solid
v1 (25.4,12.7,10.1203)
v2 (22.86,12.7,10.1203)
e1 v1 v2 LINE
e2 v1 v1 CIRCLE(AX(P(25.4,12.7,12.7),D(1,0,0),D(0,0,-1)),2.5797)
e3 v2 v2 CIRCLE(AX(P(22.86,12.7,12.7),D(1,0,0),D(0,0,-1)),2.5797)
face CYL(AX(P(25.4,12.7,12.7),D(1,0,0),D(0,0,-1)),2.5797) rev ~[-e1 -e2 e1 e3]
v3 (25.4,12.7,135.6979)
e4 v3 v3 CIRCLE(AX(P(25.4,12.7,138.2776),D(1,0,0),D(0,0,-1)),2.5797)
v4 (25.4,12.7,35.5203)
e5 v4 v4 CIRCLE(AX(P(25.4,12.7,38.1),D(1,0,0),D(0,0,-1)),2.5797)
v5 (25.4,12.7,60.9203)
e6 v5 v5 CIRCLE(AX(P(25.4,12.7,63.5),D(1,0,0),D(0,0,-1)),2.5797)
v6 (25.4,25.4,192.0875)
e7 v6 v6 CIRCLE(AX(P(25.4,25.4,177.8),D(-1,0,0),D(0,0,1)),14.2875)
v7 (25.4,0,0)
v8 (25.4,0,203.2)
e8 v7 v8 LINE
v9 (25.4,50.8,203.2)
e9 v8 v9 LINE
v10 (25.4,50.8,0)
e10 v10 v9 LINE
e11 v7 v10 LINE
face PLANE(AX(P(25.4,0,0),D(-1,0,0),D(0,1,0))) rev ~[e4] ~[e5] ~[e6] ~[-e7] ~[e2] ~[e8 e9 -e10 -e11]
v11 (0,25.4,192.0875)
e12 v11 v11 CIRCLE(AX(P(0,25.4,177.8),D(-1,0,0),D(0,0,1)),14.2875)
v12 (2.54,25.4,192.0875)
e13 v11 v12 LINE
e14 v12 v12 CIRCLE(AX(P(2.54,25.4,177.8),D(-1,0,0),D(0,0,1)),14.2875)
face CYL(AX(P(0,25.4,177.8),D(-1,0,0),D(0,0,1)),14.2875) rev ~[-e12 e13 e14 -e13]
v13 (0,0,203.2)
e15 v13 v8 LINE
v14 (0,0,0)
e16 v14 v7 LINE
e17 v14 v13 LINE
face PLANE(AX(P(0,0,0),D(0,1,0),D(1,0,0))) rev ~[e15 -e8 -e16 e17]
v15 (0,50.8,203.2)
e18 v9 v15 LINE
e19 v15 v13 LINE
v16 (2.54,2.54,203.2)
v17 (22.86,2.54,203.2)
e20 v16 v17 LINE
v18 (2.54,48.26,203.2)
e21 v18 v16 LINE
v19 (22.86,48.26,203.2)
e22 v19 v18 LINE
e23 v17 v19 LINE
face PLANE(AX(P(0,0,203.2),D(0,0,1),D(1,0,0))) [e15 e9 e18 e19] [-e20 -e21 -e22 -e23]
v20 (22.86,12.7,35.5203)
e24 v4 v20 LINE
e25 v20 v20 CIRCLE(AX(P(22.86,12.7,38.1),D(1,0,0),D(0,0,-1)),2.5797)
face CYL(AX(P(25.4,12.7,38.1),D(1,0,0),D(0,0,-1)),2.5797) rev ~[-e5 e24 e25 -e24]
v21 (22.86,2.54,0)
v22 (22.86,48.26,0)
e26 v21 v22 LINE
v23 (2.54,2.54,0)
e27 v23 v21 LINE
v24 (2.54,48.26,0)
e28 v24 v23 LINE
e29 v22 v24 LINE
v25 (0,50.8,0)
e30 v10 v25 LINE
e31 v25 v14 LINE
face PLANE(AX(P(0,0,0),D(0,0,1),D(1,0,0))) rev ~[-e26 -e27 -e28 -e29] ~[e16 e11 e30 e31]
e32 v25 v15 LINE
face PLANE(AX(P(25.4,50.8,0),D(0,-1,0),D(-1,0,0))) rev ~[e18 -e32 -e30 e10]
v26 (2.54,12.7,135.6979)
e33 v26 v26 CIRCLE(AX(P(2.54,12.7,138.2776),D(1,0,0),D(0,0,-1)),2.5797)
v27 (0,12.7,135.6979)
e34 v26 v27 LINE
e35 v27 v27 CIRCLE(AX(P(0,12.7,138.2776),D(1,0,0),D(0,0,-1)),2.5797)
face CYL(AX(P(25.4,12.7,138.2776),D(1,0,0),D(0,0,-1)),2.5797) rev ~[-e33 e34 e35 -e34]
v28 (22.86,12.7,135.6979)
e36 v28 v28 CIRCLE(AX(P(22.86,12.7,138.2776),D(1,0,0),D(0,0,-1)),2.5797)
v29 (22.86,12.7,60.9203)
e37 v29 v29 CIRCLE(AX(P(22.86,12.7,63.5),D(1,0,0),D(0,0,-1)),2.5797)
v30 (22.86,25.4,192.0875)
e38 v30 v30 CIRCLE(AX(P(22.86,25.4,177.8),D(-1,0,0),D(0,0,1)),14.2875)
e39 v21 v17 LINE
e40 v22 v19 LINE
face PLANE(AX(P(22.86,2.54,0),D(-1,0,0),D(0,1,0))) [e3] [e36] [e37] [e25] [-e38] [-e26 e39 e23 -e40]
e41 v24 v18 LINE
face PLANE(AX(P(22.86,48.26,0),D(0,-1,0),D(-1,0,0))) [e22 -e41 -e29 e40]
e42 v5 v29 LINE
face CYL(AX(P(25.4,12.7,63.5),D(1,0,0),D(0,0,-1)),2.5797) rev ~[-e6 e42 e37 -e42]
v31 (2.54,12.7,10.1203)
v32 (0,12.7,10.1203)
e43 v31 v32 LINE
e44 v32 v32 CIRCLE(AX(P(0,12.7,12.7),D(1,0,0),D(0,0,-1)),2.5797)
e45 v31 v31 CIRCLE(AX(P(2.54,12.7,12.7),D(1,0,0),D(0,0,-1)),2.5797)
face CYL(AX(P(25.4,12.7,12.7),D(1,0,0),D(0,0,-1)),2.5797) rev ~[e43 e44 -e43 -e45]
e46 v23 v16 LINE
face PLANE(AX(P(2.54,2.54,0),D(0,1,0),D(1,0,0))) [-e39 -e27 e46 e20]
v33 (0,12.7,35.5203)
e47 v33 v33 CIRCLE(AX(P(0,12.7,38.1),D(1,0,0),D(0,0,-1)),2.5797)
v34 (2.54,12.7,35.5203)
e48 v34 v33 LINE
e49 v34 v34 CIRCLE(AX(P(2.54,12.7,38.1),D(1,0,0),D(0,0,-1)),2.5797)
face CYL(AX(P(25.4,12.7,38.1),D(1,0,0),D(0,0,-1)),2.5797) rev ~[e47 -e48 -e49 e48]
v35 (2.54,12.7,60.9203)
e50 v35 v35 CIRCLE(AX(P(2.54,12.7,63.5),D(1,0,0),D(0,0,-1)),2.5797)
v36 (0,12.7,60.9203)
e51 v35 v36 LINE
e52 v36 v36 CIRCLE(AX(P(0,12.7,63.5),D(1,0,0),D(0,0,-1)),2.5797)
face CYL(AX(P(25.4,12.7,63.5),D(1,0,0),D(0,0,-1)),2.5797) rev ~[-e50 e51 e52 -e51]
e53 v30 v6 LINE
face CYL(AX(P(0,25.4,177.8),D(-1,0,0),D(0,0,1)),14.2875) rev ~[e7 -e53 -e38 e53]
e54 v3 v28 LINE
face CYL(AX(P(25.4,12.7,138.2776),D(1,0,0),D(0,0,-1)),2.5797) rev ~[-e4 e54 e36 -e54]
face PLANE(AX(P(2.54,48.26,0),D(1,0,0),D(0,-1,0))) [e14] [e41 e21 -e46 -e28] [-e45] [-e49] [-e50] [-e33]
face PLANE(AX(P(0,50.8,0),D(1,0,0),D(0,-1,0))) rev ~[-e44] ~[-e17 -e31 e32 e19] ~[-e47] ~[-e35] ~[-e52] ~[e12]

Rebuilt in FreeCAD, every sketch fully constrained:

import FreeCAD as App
import Part
import Sketcher
Q = App.Units.Quantity

doc = App.newDocument("Part")
params = doc.addObject("Spreadsheet::Sheet", "Params")
for row, (alias, value) in enumerate([
    ("sketch1_width", "1 in"),
    ("sketch1_height", "2 in"),
    ("pad1_length", "8 in"),
    ("sketch2_diameter", "0.203126 in"),
    ("pocket1_length", "8 in"),
    ("sketch3_diameter", "0.203126 in"),
    ("pocket2_length", "8 in"),
    ("sketch4_diameter", "1.125 in"),
    ("pocket3_length", "1 in"),
], start=1):
    params.set(f"A{row}", alias)
    params.set(f"B{row}", "=" + value)
    params.setAlias(f"B{row}", alias)

body = doc.addObject("PartDesign::Body", "Body")

# Sketch on XY plane
sketch1 = doc.addObject("Sketcher::SketchObject", "Sketch")
body.addObject(sketch1)
sketch1.AttachmentSupport = (doc.XY_Plane, [""])
sketch1.MapMode = "FlatFace"
sketch1.addGeometry(Part.LineSegment(App.Vector(0, 51, 0), App.Vector(0, 0, 0)), False)
sketch1.addGeometry(Part.LineSegment(App.Vector(0, 0, 0), App.Vector(25, 0, 0)), False)
sketch1.addGeometry(Part.LineSegment(App.Vector(25, 0, 0), App.Vector(25, 51, 0)), False)
sketch1.addGeometry(Part.LineSegment(App.Vector(25, 51, 0), App.Vector(0, 51, 0)), False)
sketch1.addGeometry(Part.LineSegment(App.Vector(3, 48, 0), App.Vector(23, 48, 0)), False)
sketch1.addGeometry(Part.LineSegment(App.Vector(23, 48, 0), App.Vector(23, 3, 0)), False)
sketch1.addGeometry(Part.LineSegment(App.Vector(23, 3, 0), App.Vector(3, 3, 0)), False)
sketch1.addGeometry(Part.LineSegment(App.Vector(3, 3, 0), App.Vector(3, 48, 0)), False)
sketch1.addConstraint(Sketcher.Constraint("Coincident", 0, 2, 1, 1))
sketch1.addConstraint(Sketcher.Constraint("Coincident", 1, 2, 2, 1))
sketch1.addConstraint(Sketcher.Constraint("Coincident", 2, 2, 3, 1))
sketch1.addConstraint(Sketcher.Constraint("Coincident", 3, 2, 0, 1))
sketch1.addConstraint(Sketcher.Constraint("Coincident", 4, 2, 5, 1))
sketch1.addConstraint(Sketcher.Constraint("Coincident", 5, 2, 6, 1))
sketch1.addConstraint(Sketcher.Constraint("Coincident", 6, 2, 7, 1))
sketch1.addConstraint(Sketcher.Constraint("Coincident", 7, 2, 4, 1))
sketch1.addConstraint(Sketcher.Constraint("Vertical", 0))
sketch1.addConstraint(Sketcher.Constraint("Horizontal", 1))
sketch1.addConstraint(Sketcher.Constraint("Vertical", 2))
sketch1.addConstraint(Sketcher.Constraint("Horizontal", 3))
sketch1.addConstraint(Sketcher.Constraint("Horizontal", 4))
sketch1.addConstraint(Sketcher.Constraint("Vertical", 5))
sketch1.addConstraint(Sketcher.Constraint("Horizontal", 6))
sketch1.addConstraint(Sketcher.Constraint("Vertical", 7))
sketch1.addConstraint(Sketcher.Constraint("Coincident", 0, 2, -1, 1))
sketch1.addConstraint(Sketcher.Constraint("DistanceX", 1, 1, 1, 2, Q("1 in")))
sketch1.addConstraint(Sketcher.Constraint("DistanceY", 0, 2, 0, 1, Q("2 in")))
sketch1.addConstraint(Sketcher.Constraint("DistanceY", -1, 1, 5, 2, Q("0.1 in")))
sketch1.addConstraint(Sketcher.Constraint("DistanceX", -1, 1, 6, 2, Q("0.1 in")))
sketch1.addConstraint(Sketcher.Constraint("DistanceX", 4, 2, 2, 2, Q("0.1 in")))
sketch1.addConstraint(Sketcher.Constraint("DistanceY", 4, 2, 2, 2, Q("0.1 in")))
sketch1.setExpression("Constraints[17]", "Params.sketch1_width")
sketch1.setExpression("Constraints[18]", "Params.sketch1_height")
pad1 = doc.addObject("PartDesign::Pad", "Pad")
body.addObject(pad1)
pad1.Profile = sketch1
pad1.setExpression("Length", "Params.pad1_length")

# Sketch on YZ plane
sketch2 = doc.addObject("Sketcher::SketchObject", "Sketch001")
body.addObject(sketch2)
sketch2.AttachmentSupport = (doc.YZ_Plane, [""])
sketch2.MapMode = "FlatFace"
sketch2.AttachmentOffset = App.Placement(App.Vector(0, 0, 1 * 25.4), App.Rotation())
sketch2.addGeometry(Part.Circle(App.Vector(12.7, 12.7, 0), App.Vector(0, 0, 1), 2.6), False)
sketch2.addGeometry(Part.Circle(App.Vector(12.7, 63.5, 0), App.Vector(0, 0, 1), 2.6), False)
sketch2.addGeometry(Part.Circle(App.Vector(12.7, 38.1, 0), App.Vector(0, 0, 1), 2.6), False)
sketch2.addConstraint(Sketcher.Constraint("Equal", 0, 1))
sketch2.addConstraint(Sketcher.Constraint("Equal", 1, 2))
sketch2.addConstraint(Sketcher.Constraint("Vertical", 0, 3, 1, 3))
sketch2.addConstraint(Sketcher.Constraint("Vertical", 1, 3, 2, 3))
sketch2.addConstraint(Sketcher.Constraint("Diameter", 0, Q("0.203126 in")))
sketch2.addConstraint(Sketcher.Constraint("DistanceY", 2, 3, 1, 3, Q("1 in")))
sketch2.addConstraint(Sketcher.Constraint("DistanceY", 0, 3, 2, 3, Q("1 in")))
sketch2.addConstraint(Sketcher.Constraint("DistanceX", -1, 1, 0, 3, Q("0.5 in")))
sketch2.addConstraint(Sketcher.Constraint("DistanceY", -1, 1, 0, 3, Q("0.5 in")))
sketch2.setExpression("Constraints[4]", "Params.sketch2_diameter")
pocket1 = doc.addObject("PartDesign::Pocket", "Pocket")
body.addObject(pocket1)
pocket1.Profile = sketch2
pocket1.setExpression("Length", "Params.pocket1_length")

# Sketch on YZ plane
sketch3 = doc.addObject("Sketcher::SketchObject", "Sketch002")
body.addObject(sketch3)
sketch3.AttachmentSupport = (doc.YZ_Plane, [""])
sketch3.MapMode = "FlatFace"
sketch3.AttachmentOffset = App.Placement(App.Vector(0, 0, 1 * 25.4), App.Rotation())
sketch3.addGeometry(Part.Circle(App.Vector(12.7, 138.3, 0), App.Vector(0, 0, 1), 2.6), False)
sketch3.addConstraint(Sketcher.Constraint("Diameter", 0, Q("0.203126 in")))
sketch3.addConstraint(Sketcher.Constraint("DistanceX", -1, 1, 0, 3, Q("0.5 in")))
sketch3.addConstraint(Sketcher.Constraint("DistanceY", -1, 1, 0, 3, Q("5.444 in")))
sketch3.setExpression("Constraints[0]", "Params.sketch3_diameter")
pocket2 = doc.addObject("PartDesign::Pocket", "Pocket001")
body.addObject(pocket2)
pocket2.Profile = sketch3
pocket2.setExpression("Length", "Params.pocket2_length")

# Sketch on YZ plane
sketch4 = doc.addObject("Sketcher::SketchObject", "Sketch003")
body.addObject(sketch4)
sketch4.AttachmentSupport = (doc.YZ_Plane, [""])
sketch4.MapMode = "FlatFace"
sketch4.addGeometry(Part.Circle(App.Vector(25, 178, 0), App.Vector(0, 0, 1), 14), False)
sketch4.addConstraint(Sketcher.Constraint("Diameter", 0, Q("1.125 in")))
sketch4.addConstraint(Sketcher.Constraint("DistanceX", -1, 1, 0, 3, Q("1 in")))
sketch4.addConstraint(Sketcher.Constraint("DistanceY", -1, 1, 0, 3, Q("7 in")))
sketch4.setExpression("Constraints[0]", "Params.sketch4_diameter")
pocket3 = doc.addObject("PartDesign::Pocket", "Pocket002")
body.addObject(pocket3)
pocket3.Profile = sketch4
pocket3.setExpression("Length", "Params.pocket3_length")
pocket3.Reversed = True

doc.recompute()
